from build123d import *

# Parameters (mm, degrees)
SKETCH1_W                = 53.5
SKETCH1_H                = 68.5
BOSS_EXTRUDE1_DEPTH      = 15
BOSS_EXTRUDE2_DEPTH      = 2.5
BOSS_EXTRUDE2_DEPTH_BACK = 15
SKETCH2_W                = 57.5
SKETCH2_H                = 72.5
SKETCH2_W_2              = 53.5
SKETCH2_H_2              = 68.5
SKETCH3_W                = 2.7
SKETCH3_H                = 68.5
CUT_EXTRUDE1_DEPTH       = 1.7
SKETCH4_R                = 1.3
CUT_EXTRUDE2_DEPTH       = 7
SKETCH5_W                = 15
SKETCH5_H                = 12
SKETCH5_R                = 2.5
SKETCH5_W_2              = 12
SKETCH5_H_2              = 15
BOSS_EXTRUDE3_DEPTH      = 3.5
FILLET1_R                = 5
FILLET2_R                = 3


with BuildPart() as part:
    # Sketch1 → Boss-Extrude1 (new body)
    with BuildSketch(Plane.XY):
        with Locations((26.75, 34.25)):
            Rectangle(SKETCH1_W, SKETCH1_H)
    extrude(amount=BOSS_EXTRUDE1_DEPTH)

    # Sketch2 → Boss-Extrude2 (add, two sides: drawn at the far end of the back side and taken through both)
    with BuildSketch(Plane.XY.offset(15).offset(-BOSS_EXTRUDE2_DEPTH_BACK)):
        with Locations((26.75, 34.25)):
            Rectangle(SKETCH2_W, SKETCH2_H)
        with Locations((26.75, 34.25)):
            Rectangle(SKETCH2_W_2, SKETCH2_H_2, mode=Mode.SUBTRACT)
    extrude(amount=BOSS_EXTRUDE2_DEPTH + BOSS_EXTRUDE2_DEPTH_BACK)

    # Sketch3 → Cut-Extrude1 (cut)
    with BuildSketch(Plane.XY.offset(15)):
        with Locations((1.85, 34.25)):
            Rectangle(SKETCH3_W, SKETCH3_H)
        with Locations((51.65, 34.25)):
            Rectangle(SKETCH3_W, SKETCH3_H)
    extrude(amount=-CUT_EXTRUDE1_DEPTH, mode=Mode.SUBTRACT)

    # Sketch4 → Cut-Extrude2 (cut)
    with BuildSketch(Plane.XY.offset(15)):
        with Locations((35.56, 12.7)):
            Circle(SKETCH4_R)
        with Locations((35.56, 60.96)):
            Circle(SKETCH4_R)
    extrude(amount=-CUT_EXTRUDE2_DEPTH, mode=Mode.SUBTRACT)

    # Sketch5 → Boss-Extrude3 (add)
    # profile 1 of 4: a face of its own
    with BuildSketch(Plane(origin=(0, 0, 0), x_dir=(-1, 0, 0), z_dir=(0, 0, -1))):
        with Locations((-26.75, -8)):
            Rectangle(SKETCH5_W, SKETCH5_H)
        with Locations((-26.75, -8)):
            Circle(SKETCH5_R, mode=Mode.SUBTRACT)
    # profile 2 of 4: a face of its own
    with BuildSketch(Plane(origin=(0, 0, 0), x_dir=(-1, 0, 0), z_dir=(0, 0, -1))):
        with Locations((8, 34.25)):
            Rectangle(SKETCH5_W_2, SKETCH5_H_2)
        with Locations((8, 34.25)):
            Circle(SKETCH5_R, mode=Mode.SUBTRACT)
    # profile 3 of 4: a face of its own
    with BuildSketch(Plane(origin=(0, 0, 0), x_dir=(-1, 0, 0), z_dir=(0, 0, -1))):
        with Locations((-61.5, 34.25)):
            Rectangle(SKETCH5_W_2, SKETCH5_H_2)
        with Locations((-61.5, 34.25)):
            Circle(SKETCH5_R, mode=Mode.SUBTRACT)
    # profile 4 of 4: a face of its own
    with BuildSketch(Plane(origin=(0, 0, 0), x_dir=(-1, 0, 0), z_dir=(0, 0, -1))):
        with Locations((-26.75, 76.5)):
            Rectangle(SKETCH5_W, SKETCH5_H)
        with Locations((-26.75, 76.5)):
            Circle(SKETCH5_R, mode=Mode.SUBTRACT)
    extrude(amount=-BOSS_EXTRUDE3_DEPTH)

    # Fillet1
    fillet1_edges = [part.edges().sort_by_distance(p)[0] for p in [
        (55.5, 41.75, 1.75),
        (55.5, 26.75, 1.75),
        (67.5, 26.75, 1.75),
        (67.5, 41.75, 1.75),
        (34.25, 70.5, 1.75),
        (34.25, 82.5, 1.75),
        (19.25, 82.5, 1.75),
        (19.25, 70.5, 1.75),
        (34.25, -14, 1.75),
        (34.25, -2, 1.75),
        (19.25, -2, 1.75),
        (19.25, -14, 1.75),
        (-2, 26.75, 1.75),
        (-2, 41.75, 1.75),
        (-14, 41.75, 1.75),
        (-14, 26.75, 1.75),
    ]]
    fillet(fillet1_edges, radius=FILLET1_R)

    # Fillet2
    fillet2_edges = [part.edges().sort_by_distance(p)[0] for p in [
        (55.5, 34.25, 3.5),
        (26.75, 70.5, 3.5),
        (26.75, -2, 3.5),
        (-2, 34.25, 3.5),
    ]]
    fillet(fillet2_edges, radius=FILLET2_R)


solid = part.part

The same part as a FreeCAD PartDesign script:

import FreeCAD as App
import Part
import Sketcher
from FreeCAD import Vector


def edges_at(feature, points):
    """Names of the edges that pass closest to the given points."""
    edges = feature.Shape.Edges
    near = lambda p: min(range(len(edges)), key=lambda i: edges[i].distToShape(Part.Vertex(*p))[0])
    return sorted({f"Edge{near(p) + 1}" for p in points})

doc = App.newDocument("Part")
params = doc.addObject("Spreadsheet::Sheet", "Params")
for row, (alias, value) in enumerate([
    ("sketch1_width", "53.5 mm"),
    ("sketch1_height", "68.5 mm"),
    ("pad1_length", "15 mm"),
    ("sketch2_width", "57.5 mm"),
    ("sketch2_width2", "53.5 mm"),
    ("sketch2_height", "72.5 mm"),
    ("sketch2_height2", "68.5 mm"),
    ("pad2_length", "2.5 mm"),
    ("pad2_length2", "15 mm"),
    ("sketch3_width", "2.7 mm"),
    ("sketch3_height", "68.5 mm"),
    ("pocket1_length", "1.7 mm"),
    ("sketch4_diameter", "2.6 mm"),
    ("pocket2_length", "7 mm"),
    ("sketch5_diameter", "5 mm"),
    ("sketch5_width", "15 mm"),
    ("sketch5_width2", "12 mm"),
    ("pad3_length", "3.5 mm"),
    ("fillet_radius", "5 mm"),
    ("fillet2_radius", "3 mm"),
], start=1):
    params.set(f"A{row}", alias)
    params.set(f"B{row}", "=" + value)
    params.setAlias(f"B{row}", alias)

body = doc.addObject("PartDesign::Body", "Body")

# Sketch on XY plane
sketch1 = body.newObject("Sketcher::SketchObject", "Sketch")
sketch1.AttachmentSupport = (doc.getObject("XY_Plane"), [""])
sketch1.MapMode = "FlatFace"
sketch1.addGeometry([
    Part.LineSegment(Vector(0, 68.5, 0), Vector(0, 0, 0)),
    Part.LineSegment(Vector(0, 0, 0), Vector(53.5, 0, 0)),
    Part.LineSegment(Vector(53.5, 0, 0), Vector(53.5, 68.5, 0)),
    Part.LineSegment(Vector(53.5, 68.5, 0), Vector(0, 68.5, 0)),
], False)
sketch1.addConstraint([
    Sketcher.Constraint("Coincident", 0, 2, 1, 1),
    Sketcher.Constraint("Coincident", 1, 2, 2, 1),
    Sketcher.Constraint("Coincident", 2, 2, 3, 1),
    Sketcher.Constraint("Coincident", 3, 2, 0, 1),
    Sketcher.Constraint("Vertical", 0),
    Sketcher.Constraint("Horizontal", 1),
    Sketcher.Constraint("Vertical", 2),
    Sketcher.Constraint("Horizontal", 3),
    Sketcher.Constraint("Coincident", 0, 2, -1, 1),
    Sketcher.Constraint("DistanceX", 1, 1, 1, 2, 53.5),
    Sketcher.Constraint("DistanceY", 0, 2, 0, 1, 68.5),
])
sketch1.setExpression("Constraints[9]", "Params.sketch1_width")
sketch1.setExpression("Constraints[10]", "Params.sketch1_height")
pad1 = body.newObject("PartDesign::Pad", "Pad")
pad1.Profile = sketch1
pad1.setExpression("Length", "Params.pad1_length")

# Sketch on XY plane
sketch2 = body.newObject("Sketcher::SketchObject", "Sketch001")
sketch2.AttachmentSupport = (doc.getObject("XY_Plane"), [""])
sketch2.MapMode = "FlatFace"
sketch2.AttachmentOffset = App.Placement(Vector(0, 0, 15), App.Rotation())
sketch2.addGeometry([
    Part.LineSegment(Vector(-2, 70.5, 0), Vector(-2, -2, 0)),  # 0
    Part.LineSegment(Vector(-2, -2, 0), Vector(55.5, -2, 0)),  # 1
    Part.LineSegment(Vector(55.5, -2, 0), Vector(55.5, 70.5, 0)),  # 2
    Part.LineSegment(Vector(55.5, 70.5, 0), Vector(-2, 70.5, 0)),  # 3
    Part.LineSegment(Vector(53.5, 0, 0), Vector(0, 0, 0)),  # 4
    Part.LineSegment(Vector(0, 0, 0), Vector(0, 68.5, 0)),  # 5
    Part.LineSegment(Vector(0, 68.5, 0), Vector(53.5, 68.5, 0)),  # 6
    Part.LineSegment(Vector(53.5, 68.5, 0), Vector(53.5, 0, 0)),  # 7
], False)
sketch2.addConstraint([
    Sketcher.Constraint("Coincident", 0, 2, 1, 1),
    Sketcher.Constraint("Coincident", 1, 2, 2, 1),
    Sketcher.Constraint("Coincident", 2, 2, 3, 1),
    Sketcher.Constraint("Coincident", 3, 2, 0, 1),
    Sketcher.Constraint("Coincident", 4, 2, 5, 1),
    Sketcher.Constraint("Coincident", 5, 2, 6, 1),
    Sketcher.Constraint("Coincident", 6, 2, 7, 1),
    Sketcher.Constraint("Coincident", 7, 2, 4, 1),
    Sketcher.Constraint("Vertical", 0),
    Sketcher.Constraint("Horizontal", 1),
    Sketcher.Constraint("Vertical", 2),
    Sketcher.Constraint("Horizontal", 3),
    Sketcher.Constraint("Horizontal", 4),
    Sketcher.Constraint("Vertical", 5),
    Sketcher.Constraint("Horizontal", 6),
    Sketcher.Constraint("Vertical", 7),
    Sketcher.Constraint("Coincident", 4, 2, -1, 1),
    Sketcher.Constraint("DistanceX", 1, 1, 1, 2, 57.5),
    Sketcher.Constraint("DistanceX", 4, 2, 4, 1, 53.5),
    Sketcher.Constraint("DistanceY", 0, 2, 0, 1, 72.5),
    Sketcher.Constraint("DistanceY", 5, 1, 5, 2, 68.5),
    Sketcher.Constraint("DistanceX", 0, 2, -1, 1, 2.0),
    Sketcher.Constraint("DistanceY", 0, 2, -1, 1, 2.0),
])
sketch2.setExpression("Constraints[17]", "Params.sketch2_width")
sketch2.setExpression("Constraints[18]", "Params.sketch2_width2")
sketch2.setExpression("Constraints[19]", "Params.sketch2_height")
sketch2.setExpression("Constraints[20]", "Params.sketch2_height2")
pad2 = body.newObject("PartDesign::Pad", "Pad001")
pad2.Profile = sketch2
pad2.Type = "TwoLengths"
pad2.setExpression("Length", "Params.pad2_length")
pad2.setExpression("Length2", "Params.pad2_length2")

# Sketch on XY plane
sketch3 = body.newObject("Sketcher::SketchObject", "Sketch002")
sketch3.AttachmentSupport = (doc.getObject("XY_Plane"), [""])
sketch3.MapMode = "FlatFace"
sketch3.AttachmentOffset = App.Placement(Vector(0, 0, 15), App.Rotation())
sketch3.addGeometry([
    Part.LineSegment(Vector(0.5, 68.5, 0), Vector(0.5, 0, 0)),  # 0
    Part.LineSegment(Vector(0.5, 0, 0), Vector(3.2, 0, 0)),  # 1
    Part.LineSegment(Vector(3.2, 0, 0), Vector(3.2, 68.5, 0)),  # 2
    Part.LineSegment(Vector(3.2, 68.5, 0), Vector(0.5, 68.5, 0)),  # 3
    Part.LineSegment(Vector(50.3, 68.5, 0), Vector(50.3, 0, 0)),  # 4
    Part.LineSegment(Vector(50.3, 0, 0), Vector(53, 0, 0)),  # 5
    Part.LineSegment(Vector(53, 0, 0), Vector(53, 68.5, 0)),  # 6
    Part.LineSegment(Vector(53, 68.5, 0), Vector(50.3, 68.5, 0)),  # 7
], False)
sketch3.addConstraint([
    Sketcher.Constraint("Coincident", 0, 2, 1, 1),
    Sketcher.Constraint("Coincident", 1, 2, 2, 1),
    Sketcher.Constraint("Coincident", 2, 2, 3, 1),
    Sketcher.Constraint("Coincident", 3, 2, 0, 1),
    Sketcher.Constraint("Coincident", 4, 2, 5, 1),
    Sketcher.Constraint("Coincident", 5, 2, 6, 1),
    Sketcher.Constraint("Coincident", 6, 2, 7, 1),
    Sketcher.Constraint("Coincident", 7, 2, 4, 1),
    Sketcher.Constraint("Vertical", 0),
    Sketcher.Constraint("Horizontal", 1),
    Sketcher.Constraint("Vertical", 2),
    Sketcher.Constraint("Horizontal", 3),
    Sketcher.Constraint("Vertical", 4),
    Sketcher.Constraint("Horizontal", 5),
    Sketcher.Constraint("Vertical", 6),
    Sketcher.Constraint("Horizontal", 7),
    Sketcher.Constraint("PointOnObject", 0, 2, -1),
    Sketcher.Constraint("PointOnObject", 4, 2, -1),
    Sketcher.Constraint("Horizontal", 3, 2, 6, 2),
    Sketcher.Constraint("Equal", 3, 5),
    Sketcher.Constraint("DistanceX", 1, 1, 1, 2, 2.7),
    Sketcher.Constraint("DistanceY", 0, 2, 0, 1, 68.5),
    Sketcher.Constraint("DistanceX", -1, 1, 5, 2, 53.0),
    Sketcher.Constraint("DistanceX", -1, 1, 0, 2, 0.5),
])
sketch3.setExpression("Constraints[20]", "Params.sketch3_width")
sketch3.setExpression("Constraints[21]", "Params.sketch3_height")
pocket1 = body.newObject("PartDesign::Pocket", "Pocket")
pocket1.Profile = sketch3
pocket1.setExpression("Length", "Params.pocket1_length")

# Sketch on XY plane
sketch4 = body.newObject("Sketcher::SketchObject", "Sketch003")
sketch4.AttachmentSupport = (doc.getObject("XY_Plane"), [""])
sketch4.MapMode = "FlatFace"
sketch4.AttachmentOffset = App.Placement(Vector(0, 0, 15), App.Rotation())
sketch4.addGeometry([
    Part.Circle(Vector(35.56, 12.7, 0), Vector(0, 0, 1), 1.3),
    Part.Circle(Vector(35.56, 60.96, 0), Vector(0, 0, 1), 1.3),
], False)
sketch4.addConstraint([
    Sketcher.Constraint("Equal", 0, 1),
    Sketcher.Constraint("Vertical", 0, 3, 1, 3),
    Sketcher.Constraint("Diameter", 0, 2.6),
    Sketcher.Constraint("DistanceY", -1, 1, 0, 3, 12.7),
    Sketcher.Constraint("DistanceX", -1, 1, 0, 3, 35.56),
    Sketcher.Constraint("DistanceY", -1, 1, 1, 3, 60.96),
])
sketch4.setExpression("Constraints[2]", "Params.sketch4_diameter")
pocket2 = body.newObject("PartDesign::Pocket", "Pocket001")
pocket2.Profile = sketch4
pocket2.setExpression("Length", "Params.pocket2_length")

# Sketch on XY plane
sketch5 = body.newObject("Sketcher::SketchObject", "Sketch004")
sketch5.AttachmentSupport = (doc.getObject("XY_Plane"), [""])
sketch5.MapMode = "FlatFace"
sketch5.addGeometry([
    Part.LineSegment(Vector(34.25, -2, 0), Vector(34.25, -14, 0)),  # 0
    Part.LineSegment(Vector(34.25, -14, 0), Vector(19.25, -14, 0)),  # 1
    Part.LineSegment(Vector(19.25, -14, 0), Vector(19.25, -2, 0)),  # 2
    Part.LineSegment(Vector(19.25, -2, 0), Vector(34.25, -2, 0)),  # 3
    Part.Circle(Vector(26.75, -8, 0), Vector(0, 0, 1), 2.5),  # 4
    Part.LineSegment(Vector(-2, 41.75, 0), Vector(-2, 26.75, 0)),  # 5
    Part.LineSegment(Vector(-2, 26.75, 0), Vector(-14, 26.75, 0)),  # 6
    Part.LineSegment(Vector(-14, 26.75, 0), Vector(-14, 41.75, 0)),  # 7
    Part.LineSegment(Vector(-14, 41.75, 0), Vector(-2, 41.75, 0)),  # 8
    Part.Circle(Vector(-8, 34.25, 0), Vector(0, 0, 1), 2.5),  # 9
    Part.LineSegment(Vector(67.5, 41.75, 0), Vector(67.5, 26.75, 0)),  # 10
    Part.LineSegment(Vector(67.5, 26.75, 0), Vector(55.5, 26.75, 0)),  # 11
    Part.LineSegment(Vector(55.5, 26.75, 0), Vector(55.5, 41.75, 0)),  # 12
    Part.LineSegment(Vector(55.5, 41.75, 0), Vector(67.5, 41.75, 0)),  # 13
    Part.Circle(Vector(61.5, 34.25, 0), Vector(0, 0, 1), 2.5),  # 14
    Part.LineSegment(Vector(34.25, 82.5, 0), Vector(34.25, 70.5, 0)),  # 15
    Part.LineSegment(Vector(34.25, 70.5, 0), Vector(19.25, 70.5, 0)),  # 16
    Part.LineSegment(Vector(19.25, 70.5, 0), Vector(19.25, 82.5, 0)),  # 17
    Part.LineSegment(Vector(19.25, 82.5, 0), Vector(34.25, 82.5, 0)),  # 18
    Part.Circle(Vector(26.75, 76.5, 0), Vector(0, 0, 1), 2.5),  # 19
], False)
sketch5.addConstraint([
    Sketcher.Constraint("Coincident", 0, 2, 1, 1),
    Sketcher.Constraint("Coincident", 1, 2, 2, 1),
    Sketcher.Constraint("Coincident", 2, 2, 3, 1),
    Sketcher.Constraint("Coincident", 3, 2, 0, 1),
    Sketcher.Constraint("Coincident", 5, 2, 6, 1),
    Sketcher.Constraint("Coincident", 6, 2, 7, 1),
    Sketcher.Constraint("Coincident", 7, 2, 8, 1),
    Sketcher.Constraint("Coincident", 8, 2, 5, 1),
    Sketcher.Constraint("Coincident", 10, 2, 11, 1),
    Sketcher.Constraint("Coincident", 11, 2, 12, 1),
    Sketcher.Constraint("Coincident", 12, 2, 13, 1),
    Sketcher.Constraint("Coincident", 13, 2, 10, 1),
    Sketcher.Constraint("Coincident", 15, 2, 16, 1),
    Sketcher.Constraint("Coincident", 16, 2, 17, 1),
    Sketcher.Constraint("Coincident", 17, 2, 18, 1),
    Sketcher.Constraint("Coincident", 18, 2, 15, 1),
    Sketcher.Constraint("Vertical", 0),
    Sketcher.Constraint("Horizontal", 1),
    Sketcher.Constraint("Vertical", 2),
    Sketcher.Constraint("Horizontal", 3),
    Sketcher.Constraint("Vertical", 5),
    Sketcher.Constraint("Horizontal", 6),
    Sketcher.Constraint("Vertical", 7),
    Sketcher.Constraint("Horizontal", 8),
    Sketcher.Constraint("Vertical", 10),
    Sketcher.Constraint("Horizontal", 11),
    Sketcher.Constraint("Vertical", 12),
    Sketcher.Constraint("Horizontal", 13),
    Sketcher.Constraint("Vertical", 15),
    Sketcher.Constraint("Horizontal", 16),
    Sketcher.Constraint("Vertical", 17),
    Sketcher.Constraint("Horizontal", 18),
    Sketcher.Constraint("Equal", 4, 9),
    Sketcher.Constraint("Equal", 9, 14),
    Sketcher.Constraint("Equal", 14, 19),
    Sketcher.Constraint("Horizontal", 9, 3, 14, 3),
    Sketcher.Constraint("Horizontal", 6, 2, 10, 2),
    Sketcher.Constraint("Horizontal", 8, 2, 12, 2),
    Sketcher.Constraint("Vertical", 4, 3, 19, 3),
    Sketcher.Constraint("Vertical", 3, 2, 15, 2),
    Sketcher.Constraint("Vertical", 2, 2, 16, 2),
    Sketcher.Constraint("Equal", 8, 11),
    Sketcher.Constraint("Equal", 13, 0),
    Sketcher.Constraint("Equal", 18, 5),
    Sketcher.Constraint("Equal", 2, 15),
    Sketcher.Constraint("Diameter", 4, 5.0),
    Sketcher.Constraint("DistanceX", 1, 2, 1, 1, 15.0),
    Sketcher.Constraint("DistanceX", 6, 2, 6, 1, 12.0),
    Sketcher.Constraint("DistanceY", 4, 3, -1, 1, 8.0),
    Sketcher.Constraint("DistanceX", 9, 3, -1, 1, 8.0),
    Sketcher.Constraint("DistanceY", 0, 2, -1, 1, 14.0),
    Sketcher.Constraint("DistanceX", 5, 2, -1, 1, 2.0),
    Sketcher.Constraint("DistanceX", 14, 3, 10, 2, 6.0),
    Sketcher.Constraint("DistanceY", 15, 2, 19, 3, 6.0),
    Sketcher.Constraint("DistanceX", -1, 1, 14, 3, 61.5),
    Sketcher.Constraint("DistanceY", -1, 1, 19, 3, 76.5),
    Sketcher.Constraint("DistanceX", 4, 3, 0, 2, 7.5),
    Sketcher.Constraint("DistanceY", 5, 2, 9, 3, 7.5),
    Sketcher.Constraint("DistanceX", -1, 1, 4, 3, 26.75),
    Sketcher.Constraint("DistanceY", -1, 1, 9, 3, 34.25),
])
sketch5.setExpression("Constraints[45]", "Params.sketch5_diameter")
sketch5.setExpression("Constraints[46]", "Params.sketch5_width")
sketch5.setExpression("Constraints[47]", "Params.sketch5_width2")
pad3 = body.newObject("PartDesign::Pad", "Pad002")
pad3.Profile = sketch5
pad3.setExpression("Length", "Params.pad3_length")
doc.recompute()

fillet = body.newObject("PartDesign::Fillet", "Fillet")
fillet.Base = (pad3, edges_at(pad3, [
    (55.5, 41.75, 1.75),
    (55.5, 26.75, 1.75),
    (67.5, 26.75, 1.75),
    (67.5, 41.75, 1.75),
    (34.25, 70.5, 1.75),
    (34.25, 82.5, 1.75),
    (19.25, 82.5, 1.75),
    (19.25, 70.5, 1.75),
    (34.25, -14, 1.75),
    (34.25, -2, 1.75),
    (19.25, -2, 1.75),
    (19.25, -14, 1.75),
    (-2, 26.75, 1.75),
    (-2, 41.75, 1.75),
    (-14, 41.75, 1.75),
    (-14, 26.75, 1.75),
]))
fillet.setExpression("Radius", "Params.fillet_radius")
doc.recompute()

fillet2 = body.newObject("PartDesign::Fillet", "Fillet001")
fillet2.Base = (fillet, edges_at(fillet, [
    (55.5, 34.25, 3.5),
    (26.75, 70.5, 3.5),
    (26.75, -2, 3.5),
    (-2, 34.25, 3.5),
]))
fillet2.setExpression("Radius", "Params.fillet2_radius")

doc.recompute()
